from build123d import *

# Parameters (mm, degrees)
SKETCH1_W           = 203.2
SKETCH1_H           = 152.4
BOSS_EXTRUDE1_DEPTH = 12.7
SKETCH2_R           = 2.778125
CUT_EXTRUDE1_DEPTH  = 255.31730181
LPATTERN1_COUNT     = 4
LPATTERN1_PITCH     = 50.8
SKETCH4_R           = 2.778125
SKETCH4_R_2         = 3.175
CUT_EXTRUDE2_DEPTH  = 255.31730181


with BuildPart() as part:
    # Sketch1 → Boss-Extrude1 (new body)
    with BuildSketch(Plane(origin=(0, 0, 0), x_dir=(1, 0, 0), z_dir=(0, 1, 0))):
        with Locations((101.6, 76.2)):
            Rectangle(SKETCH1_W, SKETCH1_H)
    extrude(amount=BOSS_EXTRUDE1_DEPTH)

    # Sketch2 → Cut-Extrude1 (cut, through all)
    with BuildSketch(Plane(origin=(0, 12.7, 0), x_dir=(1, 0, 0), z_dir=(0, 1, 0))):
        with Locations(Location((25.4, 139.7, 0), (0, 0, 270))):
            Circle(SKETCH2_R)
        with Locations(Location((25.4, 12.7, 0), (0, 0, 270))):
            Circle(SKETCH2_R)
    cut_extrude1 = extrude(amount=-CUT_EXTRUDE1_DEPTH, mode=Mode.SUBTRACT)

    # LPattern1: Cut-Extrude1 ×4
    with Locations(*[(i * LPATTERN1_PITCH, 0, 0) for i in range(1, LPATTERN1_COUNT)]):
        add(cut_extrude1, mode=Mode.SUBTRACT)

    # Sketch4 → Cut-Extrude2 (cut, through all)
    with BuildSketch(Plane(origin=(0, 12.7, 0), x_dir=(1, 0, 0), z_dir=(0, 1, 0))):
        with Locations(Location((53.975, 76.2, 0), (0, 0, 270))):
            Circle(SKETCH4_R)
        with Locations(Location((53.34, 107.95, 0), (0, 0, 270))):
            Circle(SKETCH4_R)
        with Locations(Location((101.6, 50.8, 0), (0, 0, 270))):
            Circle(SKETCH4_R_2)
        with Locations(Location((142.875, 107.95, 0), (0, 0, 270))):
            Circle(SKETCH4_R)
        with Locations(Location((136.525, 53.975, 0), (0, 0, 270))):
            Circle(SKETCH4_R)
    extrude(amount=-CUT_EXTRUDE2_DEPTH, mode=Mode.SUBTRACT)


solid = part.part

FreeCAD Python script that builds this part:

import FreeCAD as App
import Part
import Sketcher
Q = App.Units.Quantity

doc = App.newDocument("Part")
body = doc.addObject("PartDesign::Body", "Body")

sketch1 = body.newObject("Sketcher::SketchObject", "Sketch")
sketch1.AttachmentSupport = (doc.getObject("XZ_Plane"), [""])
sketch1.MapMode = "FlatFace"
sketch1.addGeometry([
    Part.LineSegment(App.Vector(0, -152, 0), App.Vector(0, 0, 0)),
    Part.LineSegment(App.Vector(0, 0, 0), App.Vector(203, 0, 0)),
    Part.LineSegment(App.Vector(203, 0, 0), App.Vector(203, -152, 0)),
    Part.LineSegment(App.Vector(203, -152, 0), App.Vector(0, -152, 0)),
], False)
sketch1.addConstraint([
    Sketcher.Constraint("Coincident", 0, 2, 1, 1),
    Sketcher.Constraint("Coincident", 1, 2, 2, 1),
    Sketcher.Constraint("Coincident", 2, 2, 3, 1),
    Sketcher.Constraint("Coincident", 3, 2, 0, 1),
    Sketcher.Constraint("Vertical", 0),
    Sketcher.Constraint("Horizontal", 1),
    Sketcher.Constraint("Vertical", 2),
    Sketcher.Constraint("Horizontal", 3),
    Sketcher.Constraint("Coincident", 0, 2, -1, 1),
    Sketcher.Constraint("DistanceX", 1, 1, 1, 2, Q("8 in")),
    Sketcher.Constraint("DistanceY", 0, 1, 0, 2, Q("6 in")),
])
pad1 = body.newObject("PartDesign::Pad", "Pad")
pad1.Profile = sketch1
pad1.Length = Q("0.5 in")
pad1.Reversed = True

sketch2 = body.newObject("Sketcher::SketchObject", "Sketch001")
sketch2.AttachmentSupport = (doc.getObject("XZ_Plane"), [""])
sketch2.MapMode = "FlatFace"
sketch2.AttachmentOffset = App.Placement(App.Vector(0, 0, -0.5 * 25.4), App.Rotation())
sketch2.addGeometry([
    Part.Circle(App.Vector(25.4, -139.7, 0), App.Vector(0, 0, 1), 2.8),
    Part.Circle(App.Vector(25.4, -12.7, 0), App.Vector(0, 0, 1), 2.8),
], False)
sketch2.addConstraint([
    Sketcher.Constraint("Equal", 0, 1),
    Sketcher.Constraint("Vertical", 0, 3, 1, 3),
    Sketcher.Constraint("Diameter", 0, Q("0.21875 in")),
    Sketcher.Constraint("DistanceX", -1, 1, 0, 3, Q("1 in")),
    Sketcher.Constraint("DistanceY", 0, 3, 1, 3, Q("5 in")),
    Sketcher.Constraint("DistanceY", 0, 3, -1, 1, Q("5.5 in")),
])
pocket1 = body.newObject("PartDesign::Pocket", "Pocket")
pocket1.Profile = sketch2
pocket1.Type = "ThroughAll"
pocket1.Reversed = True
doc.recompute()

linearpattern = body.newObject("PartDesign::LinearPattern", "LinearPattern")
linearpattern.Originals = [pocket1]
linearpattern.Direction = (doc.getObject("X_Axis"), [""])
linearpattern.Mode = "offset"
linearpattern.Offset = Q("2 in")
linearpattern.Occurrences = 4
body.Tip = linearpattern

sketch3 = body.newObject("Sketcher::SketchObject", "Sketch002")
sketch3.AttachmentSupport = (doc.getObject("XZ_Plane"), [""])
sketch3.MapMode = "FlatFace"
sketch3.AttachmentOffset = App.Placement(App.Vector(0, 0, -0.5 * 25.4), App.Rotation())
sketch3.addGeometry([
    Part.Circle(App.Vector(54, -76.2, 0), App.Vector(0, 0, 1), 2.8),
    Part.Circle(App.Vector(53.3, -108, 0), App.Vector(0, 0, 1), 2.8),
    Part.Circle(App.Vector(101.6, -50.8, 0), App.Vector(0, 0, 1), 3.2),
    Part.Circle(App.Vector(142.9, -108, 0), App.Vector(0, 0, 1), 2.8),
    Part.Circle(App.Vector(136.5, -54, 0), App.Vector(0, 0, 1), 2.8),
], False)
sketch3.addConstraint([
    Sketcher.Constraint("Equal", 0, 1),
    Sketcher.Constraint("Equal", 1, 3),
    Sketcher.Constraint("Equal", 3, 4),
    Sketcher.Constraint("Horizontal", 1, 3, 3, 3),
    Sketcher.Constraint("Diameter", 2, Q("0.25 in")),
    Sketcher.Constraint("Diameter", 0, Q("0.21875 in")),
    Sketcher.Constraint("DistanceY", 0, 3, -1, 1, Q("3 in")),
    Sketcher.Constraint("DistanceX", -1, 1, 2, 3, Q("4 in")),
    Sketcher.Constraint("DistanceY", 2, 3, -1, 1, Q("2 in")),
    Sketcher.Constraint("DistanceX", -1, 1, 1, 3, Q("2.1 in")),
    Sketcher.Constraint("DistanceX", 0, 3, 3, 3, Q("3.5 in")),
    Sketcher.Constraint("DistanceY", 1, 3, -1, 1, Q("4.25 in")),
    Sketcher.Constraint("DistanceX", 4, 3, 3, 3, Q("0.25 in")),
    Sketcher.Constraint("DistanceX", -1, 1, 0, 3, Q("2.125 in")),
    Sketcher.Constraint("DistanceY", 4, 3, -1, 1, Q("2.125 in")),
])
pocket2 = body.newObject("PartDesign::Pocket", "Pocket001")
pocket2.Profile = sketch3
pocket2.Type = "ThroughAll"
pocket2.Reversed = True

doc.recompute()
